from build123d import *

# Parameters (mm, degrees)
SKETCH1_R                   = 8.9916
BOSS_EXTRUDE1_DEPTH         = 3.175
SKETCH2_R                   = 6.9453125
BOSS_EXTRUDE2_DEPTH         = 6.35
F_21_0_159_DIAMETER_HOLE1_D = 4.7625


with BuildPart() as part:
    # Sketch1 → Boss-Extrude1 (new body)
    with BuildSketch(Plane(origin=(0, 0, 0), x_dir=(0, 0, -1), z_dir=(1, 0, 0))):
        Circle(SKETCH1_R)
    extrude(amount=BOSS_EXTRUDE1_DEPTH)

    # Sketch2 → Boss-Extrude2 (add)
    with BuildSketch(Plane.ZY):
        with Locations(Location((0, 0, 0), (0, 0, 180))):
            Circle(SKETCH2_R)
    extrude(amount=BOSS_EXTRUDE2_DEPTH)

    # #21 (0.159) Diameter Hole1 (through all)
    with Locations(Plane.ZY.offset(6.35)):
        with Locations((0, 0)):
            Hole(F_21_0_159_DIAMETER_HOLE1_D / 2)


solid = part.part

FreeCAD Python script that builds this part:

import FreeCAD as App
import Part
import Sketcher
from FreeCAD import Vector
Q = App.Units.Quantity

doc = App.newDocument("Part")
body = doc.addObject("PartDesign::Body", "Body")

# Sketch on YZ plane
sketch1 = doc.addObject("Sketcher::SketchObject", "Sketch")
body.addObject(sketch1)
sketch1.AttachmentSupport = (doc.YZ_Plane, [""])
sketch1.MapMode = "FlatFace"
sketch1.addGeometry(Part.Circle(Vector(0, 0, 0), Vector(0, 0, 1), 9), False)
sketch1.addConstraint([
    Sketcher.Constraint("Coincident", 0, 3, -1, 1),
    Sketcher.Constraint("Diameter", 0, Q("0.708 in")),
])
pad1 = doc.addObject("PartDesign::Pad", "Pad")
body.addObject(pad1)
pad1.Profile = sketch1
pad1.Length = Q("0.125 in")

# Sketch on YZ plane
sketch2 = doc.addObject("Sketcher::SketchObject", "Sketch001")
body.addObject(sketch2)
sketch2.AttachmentSupport = (doc.YZ_Plane, [""])
sketch2.MapMode = "FlatFace"
sketch2.addGeometry(Part.Circle(Vector(0, 0, 0), Vector(0, 0, 1), 7), False)
sketch2.addConstraint([
    Sketcher.Constraint("Coincident", 0, 3, -1, 1),
    Sketcher.Constraint("Diameter", 0, Q("0.546875 in")),
])
pad2 = doc.addObject("PartDesign::Pad", "Pad001")
body.addObject(pad2)
pad2.Profile = sketch2
pad2.Length = Q("0.25 in")
pad2.Reversed = True

# Sketch on YZ plane
sketch3 = doc.addObject("Sketcher::SketchObject", "Sketch002")
body.addObject(sketch3)
sketch3.AttachmentSupport = (doc.YZ_Plane, [""])
sketch3.MapMode = "FlatFace"
sketch3.AttachmentOffset = App.Placement(Vector(0, 0, -0.25 * 25.4), App.Rotation())
sketch3.addGeometry(Part.Circle(Vector(0, 0, 0), Vector(0, 0, 1), 2.4), False)
sketch3.addConstraint([
    Sketcher.Constraint("Coincident", 0, 3, -1, 1),
    Sketcher.Constraint("Diameter", 0, Q("0.1875 in")),
])
doc.recompute()
hole = doc.addObject("PartDesign::Hole", "Hole")
body.addObject(hole)
hole.Profile = sketch3
hole.ThreadType = "None"
hole.Diameter = Q("0.1875 in")
hole.DepthType = "ThroughAll"
hole.Reversed = True

doc.recompute()
